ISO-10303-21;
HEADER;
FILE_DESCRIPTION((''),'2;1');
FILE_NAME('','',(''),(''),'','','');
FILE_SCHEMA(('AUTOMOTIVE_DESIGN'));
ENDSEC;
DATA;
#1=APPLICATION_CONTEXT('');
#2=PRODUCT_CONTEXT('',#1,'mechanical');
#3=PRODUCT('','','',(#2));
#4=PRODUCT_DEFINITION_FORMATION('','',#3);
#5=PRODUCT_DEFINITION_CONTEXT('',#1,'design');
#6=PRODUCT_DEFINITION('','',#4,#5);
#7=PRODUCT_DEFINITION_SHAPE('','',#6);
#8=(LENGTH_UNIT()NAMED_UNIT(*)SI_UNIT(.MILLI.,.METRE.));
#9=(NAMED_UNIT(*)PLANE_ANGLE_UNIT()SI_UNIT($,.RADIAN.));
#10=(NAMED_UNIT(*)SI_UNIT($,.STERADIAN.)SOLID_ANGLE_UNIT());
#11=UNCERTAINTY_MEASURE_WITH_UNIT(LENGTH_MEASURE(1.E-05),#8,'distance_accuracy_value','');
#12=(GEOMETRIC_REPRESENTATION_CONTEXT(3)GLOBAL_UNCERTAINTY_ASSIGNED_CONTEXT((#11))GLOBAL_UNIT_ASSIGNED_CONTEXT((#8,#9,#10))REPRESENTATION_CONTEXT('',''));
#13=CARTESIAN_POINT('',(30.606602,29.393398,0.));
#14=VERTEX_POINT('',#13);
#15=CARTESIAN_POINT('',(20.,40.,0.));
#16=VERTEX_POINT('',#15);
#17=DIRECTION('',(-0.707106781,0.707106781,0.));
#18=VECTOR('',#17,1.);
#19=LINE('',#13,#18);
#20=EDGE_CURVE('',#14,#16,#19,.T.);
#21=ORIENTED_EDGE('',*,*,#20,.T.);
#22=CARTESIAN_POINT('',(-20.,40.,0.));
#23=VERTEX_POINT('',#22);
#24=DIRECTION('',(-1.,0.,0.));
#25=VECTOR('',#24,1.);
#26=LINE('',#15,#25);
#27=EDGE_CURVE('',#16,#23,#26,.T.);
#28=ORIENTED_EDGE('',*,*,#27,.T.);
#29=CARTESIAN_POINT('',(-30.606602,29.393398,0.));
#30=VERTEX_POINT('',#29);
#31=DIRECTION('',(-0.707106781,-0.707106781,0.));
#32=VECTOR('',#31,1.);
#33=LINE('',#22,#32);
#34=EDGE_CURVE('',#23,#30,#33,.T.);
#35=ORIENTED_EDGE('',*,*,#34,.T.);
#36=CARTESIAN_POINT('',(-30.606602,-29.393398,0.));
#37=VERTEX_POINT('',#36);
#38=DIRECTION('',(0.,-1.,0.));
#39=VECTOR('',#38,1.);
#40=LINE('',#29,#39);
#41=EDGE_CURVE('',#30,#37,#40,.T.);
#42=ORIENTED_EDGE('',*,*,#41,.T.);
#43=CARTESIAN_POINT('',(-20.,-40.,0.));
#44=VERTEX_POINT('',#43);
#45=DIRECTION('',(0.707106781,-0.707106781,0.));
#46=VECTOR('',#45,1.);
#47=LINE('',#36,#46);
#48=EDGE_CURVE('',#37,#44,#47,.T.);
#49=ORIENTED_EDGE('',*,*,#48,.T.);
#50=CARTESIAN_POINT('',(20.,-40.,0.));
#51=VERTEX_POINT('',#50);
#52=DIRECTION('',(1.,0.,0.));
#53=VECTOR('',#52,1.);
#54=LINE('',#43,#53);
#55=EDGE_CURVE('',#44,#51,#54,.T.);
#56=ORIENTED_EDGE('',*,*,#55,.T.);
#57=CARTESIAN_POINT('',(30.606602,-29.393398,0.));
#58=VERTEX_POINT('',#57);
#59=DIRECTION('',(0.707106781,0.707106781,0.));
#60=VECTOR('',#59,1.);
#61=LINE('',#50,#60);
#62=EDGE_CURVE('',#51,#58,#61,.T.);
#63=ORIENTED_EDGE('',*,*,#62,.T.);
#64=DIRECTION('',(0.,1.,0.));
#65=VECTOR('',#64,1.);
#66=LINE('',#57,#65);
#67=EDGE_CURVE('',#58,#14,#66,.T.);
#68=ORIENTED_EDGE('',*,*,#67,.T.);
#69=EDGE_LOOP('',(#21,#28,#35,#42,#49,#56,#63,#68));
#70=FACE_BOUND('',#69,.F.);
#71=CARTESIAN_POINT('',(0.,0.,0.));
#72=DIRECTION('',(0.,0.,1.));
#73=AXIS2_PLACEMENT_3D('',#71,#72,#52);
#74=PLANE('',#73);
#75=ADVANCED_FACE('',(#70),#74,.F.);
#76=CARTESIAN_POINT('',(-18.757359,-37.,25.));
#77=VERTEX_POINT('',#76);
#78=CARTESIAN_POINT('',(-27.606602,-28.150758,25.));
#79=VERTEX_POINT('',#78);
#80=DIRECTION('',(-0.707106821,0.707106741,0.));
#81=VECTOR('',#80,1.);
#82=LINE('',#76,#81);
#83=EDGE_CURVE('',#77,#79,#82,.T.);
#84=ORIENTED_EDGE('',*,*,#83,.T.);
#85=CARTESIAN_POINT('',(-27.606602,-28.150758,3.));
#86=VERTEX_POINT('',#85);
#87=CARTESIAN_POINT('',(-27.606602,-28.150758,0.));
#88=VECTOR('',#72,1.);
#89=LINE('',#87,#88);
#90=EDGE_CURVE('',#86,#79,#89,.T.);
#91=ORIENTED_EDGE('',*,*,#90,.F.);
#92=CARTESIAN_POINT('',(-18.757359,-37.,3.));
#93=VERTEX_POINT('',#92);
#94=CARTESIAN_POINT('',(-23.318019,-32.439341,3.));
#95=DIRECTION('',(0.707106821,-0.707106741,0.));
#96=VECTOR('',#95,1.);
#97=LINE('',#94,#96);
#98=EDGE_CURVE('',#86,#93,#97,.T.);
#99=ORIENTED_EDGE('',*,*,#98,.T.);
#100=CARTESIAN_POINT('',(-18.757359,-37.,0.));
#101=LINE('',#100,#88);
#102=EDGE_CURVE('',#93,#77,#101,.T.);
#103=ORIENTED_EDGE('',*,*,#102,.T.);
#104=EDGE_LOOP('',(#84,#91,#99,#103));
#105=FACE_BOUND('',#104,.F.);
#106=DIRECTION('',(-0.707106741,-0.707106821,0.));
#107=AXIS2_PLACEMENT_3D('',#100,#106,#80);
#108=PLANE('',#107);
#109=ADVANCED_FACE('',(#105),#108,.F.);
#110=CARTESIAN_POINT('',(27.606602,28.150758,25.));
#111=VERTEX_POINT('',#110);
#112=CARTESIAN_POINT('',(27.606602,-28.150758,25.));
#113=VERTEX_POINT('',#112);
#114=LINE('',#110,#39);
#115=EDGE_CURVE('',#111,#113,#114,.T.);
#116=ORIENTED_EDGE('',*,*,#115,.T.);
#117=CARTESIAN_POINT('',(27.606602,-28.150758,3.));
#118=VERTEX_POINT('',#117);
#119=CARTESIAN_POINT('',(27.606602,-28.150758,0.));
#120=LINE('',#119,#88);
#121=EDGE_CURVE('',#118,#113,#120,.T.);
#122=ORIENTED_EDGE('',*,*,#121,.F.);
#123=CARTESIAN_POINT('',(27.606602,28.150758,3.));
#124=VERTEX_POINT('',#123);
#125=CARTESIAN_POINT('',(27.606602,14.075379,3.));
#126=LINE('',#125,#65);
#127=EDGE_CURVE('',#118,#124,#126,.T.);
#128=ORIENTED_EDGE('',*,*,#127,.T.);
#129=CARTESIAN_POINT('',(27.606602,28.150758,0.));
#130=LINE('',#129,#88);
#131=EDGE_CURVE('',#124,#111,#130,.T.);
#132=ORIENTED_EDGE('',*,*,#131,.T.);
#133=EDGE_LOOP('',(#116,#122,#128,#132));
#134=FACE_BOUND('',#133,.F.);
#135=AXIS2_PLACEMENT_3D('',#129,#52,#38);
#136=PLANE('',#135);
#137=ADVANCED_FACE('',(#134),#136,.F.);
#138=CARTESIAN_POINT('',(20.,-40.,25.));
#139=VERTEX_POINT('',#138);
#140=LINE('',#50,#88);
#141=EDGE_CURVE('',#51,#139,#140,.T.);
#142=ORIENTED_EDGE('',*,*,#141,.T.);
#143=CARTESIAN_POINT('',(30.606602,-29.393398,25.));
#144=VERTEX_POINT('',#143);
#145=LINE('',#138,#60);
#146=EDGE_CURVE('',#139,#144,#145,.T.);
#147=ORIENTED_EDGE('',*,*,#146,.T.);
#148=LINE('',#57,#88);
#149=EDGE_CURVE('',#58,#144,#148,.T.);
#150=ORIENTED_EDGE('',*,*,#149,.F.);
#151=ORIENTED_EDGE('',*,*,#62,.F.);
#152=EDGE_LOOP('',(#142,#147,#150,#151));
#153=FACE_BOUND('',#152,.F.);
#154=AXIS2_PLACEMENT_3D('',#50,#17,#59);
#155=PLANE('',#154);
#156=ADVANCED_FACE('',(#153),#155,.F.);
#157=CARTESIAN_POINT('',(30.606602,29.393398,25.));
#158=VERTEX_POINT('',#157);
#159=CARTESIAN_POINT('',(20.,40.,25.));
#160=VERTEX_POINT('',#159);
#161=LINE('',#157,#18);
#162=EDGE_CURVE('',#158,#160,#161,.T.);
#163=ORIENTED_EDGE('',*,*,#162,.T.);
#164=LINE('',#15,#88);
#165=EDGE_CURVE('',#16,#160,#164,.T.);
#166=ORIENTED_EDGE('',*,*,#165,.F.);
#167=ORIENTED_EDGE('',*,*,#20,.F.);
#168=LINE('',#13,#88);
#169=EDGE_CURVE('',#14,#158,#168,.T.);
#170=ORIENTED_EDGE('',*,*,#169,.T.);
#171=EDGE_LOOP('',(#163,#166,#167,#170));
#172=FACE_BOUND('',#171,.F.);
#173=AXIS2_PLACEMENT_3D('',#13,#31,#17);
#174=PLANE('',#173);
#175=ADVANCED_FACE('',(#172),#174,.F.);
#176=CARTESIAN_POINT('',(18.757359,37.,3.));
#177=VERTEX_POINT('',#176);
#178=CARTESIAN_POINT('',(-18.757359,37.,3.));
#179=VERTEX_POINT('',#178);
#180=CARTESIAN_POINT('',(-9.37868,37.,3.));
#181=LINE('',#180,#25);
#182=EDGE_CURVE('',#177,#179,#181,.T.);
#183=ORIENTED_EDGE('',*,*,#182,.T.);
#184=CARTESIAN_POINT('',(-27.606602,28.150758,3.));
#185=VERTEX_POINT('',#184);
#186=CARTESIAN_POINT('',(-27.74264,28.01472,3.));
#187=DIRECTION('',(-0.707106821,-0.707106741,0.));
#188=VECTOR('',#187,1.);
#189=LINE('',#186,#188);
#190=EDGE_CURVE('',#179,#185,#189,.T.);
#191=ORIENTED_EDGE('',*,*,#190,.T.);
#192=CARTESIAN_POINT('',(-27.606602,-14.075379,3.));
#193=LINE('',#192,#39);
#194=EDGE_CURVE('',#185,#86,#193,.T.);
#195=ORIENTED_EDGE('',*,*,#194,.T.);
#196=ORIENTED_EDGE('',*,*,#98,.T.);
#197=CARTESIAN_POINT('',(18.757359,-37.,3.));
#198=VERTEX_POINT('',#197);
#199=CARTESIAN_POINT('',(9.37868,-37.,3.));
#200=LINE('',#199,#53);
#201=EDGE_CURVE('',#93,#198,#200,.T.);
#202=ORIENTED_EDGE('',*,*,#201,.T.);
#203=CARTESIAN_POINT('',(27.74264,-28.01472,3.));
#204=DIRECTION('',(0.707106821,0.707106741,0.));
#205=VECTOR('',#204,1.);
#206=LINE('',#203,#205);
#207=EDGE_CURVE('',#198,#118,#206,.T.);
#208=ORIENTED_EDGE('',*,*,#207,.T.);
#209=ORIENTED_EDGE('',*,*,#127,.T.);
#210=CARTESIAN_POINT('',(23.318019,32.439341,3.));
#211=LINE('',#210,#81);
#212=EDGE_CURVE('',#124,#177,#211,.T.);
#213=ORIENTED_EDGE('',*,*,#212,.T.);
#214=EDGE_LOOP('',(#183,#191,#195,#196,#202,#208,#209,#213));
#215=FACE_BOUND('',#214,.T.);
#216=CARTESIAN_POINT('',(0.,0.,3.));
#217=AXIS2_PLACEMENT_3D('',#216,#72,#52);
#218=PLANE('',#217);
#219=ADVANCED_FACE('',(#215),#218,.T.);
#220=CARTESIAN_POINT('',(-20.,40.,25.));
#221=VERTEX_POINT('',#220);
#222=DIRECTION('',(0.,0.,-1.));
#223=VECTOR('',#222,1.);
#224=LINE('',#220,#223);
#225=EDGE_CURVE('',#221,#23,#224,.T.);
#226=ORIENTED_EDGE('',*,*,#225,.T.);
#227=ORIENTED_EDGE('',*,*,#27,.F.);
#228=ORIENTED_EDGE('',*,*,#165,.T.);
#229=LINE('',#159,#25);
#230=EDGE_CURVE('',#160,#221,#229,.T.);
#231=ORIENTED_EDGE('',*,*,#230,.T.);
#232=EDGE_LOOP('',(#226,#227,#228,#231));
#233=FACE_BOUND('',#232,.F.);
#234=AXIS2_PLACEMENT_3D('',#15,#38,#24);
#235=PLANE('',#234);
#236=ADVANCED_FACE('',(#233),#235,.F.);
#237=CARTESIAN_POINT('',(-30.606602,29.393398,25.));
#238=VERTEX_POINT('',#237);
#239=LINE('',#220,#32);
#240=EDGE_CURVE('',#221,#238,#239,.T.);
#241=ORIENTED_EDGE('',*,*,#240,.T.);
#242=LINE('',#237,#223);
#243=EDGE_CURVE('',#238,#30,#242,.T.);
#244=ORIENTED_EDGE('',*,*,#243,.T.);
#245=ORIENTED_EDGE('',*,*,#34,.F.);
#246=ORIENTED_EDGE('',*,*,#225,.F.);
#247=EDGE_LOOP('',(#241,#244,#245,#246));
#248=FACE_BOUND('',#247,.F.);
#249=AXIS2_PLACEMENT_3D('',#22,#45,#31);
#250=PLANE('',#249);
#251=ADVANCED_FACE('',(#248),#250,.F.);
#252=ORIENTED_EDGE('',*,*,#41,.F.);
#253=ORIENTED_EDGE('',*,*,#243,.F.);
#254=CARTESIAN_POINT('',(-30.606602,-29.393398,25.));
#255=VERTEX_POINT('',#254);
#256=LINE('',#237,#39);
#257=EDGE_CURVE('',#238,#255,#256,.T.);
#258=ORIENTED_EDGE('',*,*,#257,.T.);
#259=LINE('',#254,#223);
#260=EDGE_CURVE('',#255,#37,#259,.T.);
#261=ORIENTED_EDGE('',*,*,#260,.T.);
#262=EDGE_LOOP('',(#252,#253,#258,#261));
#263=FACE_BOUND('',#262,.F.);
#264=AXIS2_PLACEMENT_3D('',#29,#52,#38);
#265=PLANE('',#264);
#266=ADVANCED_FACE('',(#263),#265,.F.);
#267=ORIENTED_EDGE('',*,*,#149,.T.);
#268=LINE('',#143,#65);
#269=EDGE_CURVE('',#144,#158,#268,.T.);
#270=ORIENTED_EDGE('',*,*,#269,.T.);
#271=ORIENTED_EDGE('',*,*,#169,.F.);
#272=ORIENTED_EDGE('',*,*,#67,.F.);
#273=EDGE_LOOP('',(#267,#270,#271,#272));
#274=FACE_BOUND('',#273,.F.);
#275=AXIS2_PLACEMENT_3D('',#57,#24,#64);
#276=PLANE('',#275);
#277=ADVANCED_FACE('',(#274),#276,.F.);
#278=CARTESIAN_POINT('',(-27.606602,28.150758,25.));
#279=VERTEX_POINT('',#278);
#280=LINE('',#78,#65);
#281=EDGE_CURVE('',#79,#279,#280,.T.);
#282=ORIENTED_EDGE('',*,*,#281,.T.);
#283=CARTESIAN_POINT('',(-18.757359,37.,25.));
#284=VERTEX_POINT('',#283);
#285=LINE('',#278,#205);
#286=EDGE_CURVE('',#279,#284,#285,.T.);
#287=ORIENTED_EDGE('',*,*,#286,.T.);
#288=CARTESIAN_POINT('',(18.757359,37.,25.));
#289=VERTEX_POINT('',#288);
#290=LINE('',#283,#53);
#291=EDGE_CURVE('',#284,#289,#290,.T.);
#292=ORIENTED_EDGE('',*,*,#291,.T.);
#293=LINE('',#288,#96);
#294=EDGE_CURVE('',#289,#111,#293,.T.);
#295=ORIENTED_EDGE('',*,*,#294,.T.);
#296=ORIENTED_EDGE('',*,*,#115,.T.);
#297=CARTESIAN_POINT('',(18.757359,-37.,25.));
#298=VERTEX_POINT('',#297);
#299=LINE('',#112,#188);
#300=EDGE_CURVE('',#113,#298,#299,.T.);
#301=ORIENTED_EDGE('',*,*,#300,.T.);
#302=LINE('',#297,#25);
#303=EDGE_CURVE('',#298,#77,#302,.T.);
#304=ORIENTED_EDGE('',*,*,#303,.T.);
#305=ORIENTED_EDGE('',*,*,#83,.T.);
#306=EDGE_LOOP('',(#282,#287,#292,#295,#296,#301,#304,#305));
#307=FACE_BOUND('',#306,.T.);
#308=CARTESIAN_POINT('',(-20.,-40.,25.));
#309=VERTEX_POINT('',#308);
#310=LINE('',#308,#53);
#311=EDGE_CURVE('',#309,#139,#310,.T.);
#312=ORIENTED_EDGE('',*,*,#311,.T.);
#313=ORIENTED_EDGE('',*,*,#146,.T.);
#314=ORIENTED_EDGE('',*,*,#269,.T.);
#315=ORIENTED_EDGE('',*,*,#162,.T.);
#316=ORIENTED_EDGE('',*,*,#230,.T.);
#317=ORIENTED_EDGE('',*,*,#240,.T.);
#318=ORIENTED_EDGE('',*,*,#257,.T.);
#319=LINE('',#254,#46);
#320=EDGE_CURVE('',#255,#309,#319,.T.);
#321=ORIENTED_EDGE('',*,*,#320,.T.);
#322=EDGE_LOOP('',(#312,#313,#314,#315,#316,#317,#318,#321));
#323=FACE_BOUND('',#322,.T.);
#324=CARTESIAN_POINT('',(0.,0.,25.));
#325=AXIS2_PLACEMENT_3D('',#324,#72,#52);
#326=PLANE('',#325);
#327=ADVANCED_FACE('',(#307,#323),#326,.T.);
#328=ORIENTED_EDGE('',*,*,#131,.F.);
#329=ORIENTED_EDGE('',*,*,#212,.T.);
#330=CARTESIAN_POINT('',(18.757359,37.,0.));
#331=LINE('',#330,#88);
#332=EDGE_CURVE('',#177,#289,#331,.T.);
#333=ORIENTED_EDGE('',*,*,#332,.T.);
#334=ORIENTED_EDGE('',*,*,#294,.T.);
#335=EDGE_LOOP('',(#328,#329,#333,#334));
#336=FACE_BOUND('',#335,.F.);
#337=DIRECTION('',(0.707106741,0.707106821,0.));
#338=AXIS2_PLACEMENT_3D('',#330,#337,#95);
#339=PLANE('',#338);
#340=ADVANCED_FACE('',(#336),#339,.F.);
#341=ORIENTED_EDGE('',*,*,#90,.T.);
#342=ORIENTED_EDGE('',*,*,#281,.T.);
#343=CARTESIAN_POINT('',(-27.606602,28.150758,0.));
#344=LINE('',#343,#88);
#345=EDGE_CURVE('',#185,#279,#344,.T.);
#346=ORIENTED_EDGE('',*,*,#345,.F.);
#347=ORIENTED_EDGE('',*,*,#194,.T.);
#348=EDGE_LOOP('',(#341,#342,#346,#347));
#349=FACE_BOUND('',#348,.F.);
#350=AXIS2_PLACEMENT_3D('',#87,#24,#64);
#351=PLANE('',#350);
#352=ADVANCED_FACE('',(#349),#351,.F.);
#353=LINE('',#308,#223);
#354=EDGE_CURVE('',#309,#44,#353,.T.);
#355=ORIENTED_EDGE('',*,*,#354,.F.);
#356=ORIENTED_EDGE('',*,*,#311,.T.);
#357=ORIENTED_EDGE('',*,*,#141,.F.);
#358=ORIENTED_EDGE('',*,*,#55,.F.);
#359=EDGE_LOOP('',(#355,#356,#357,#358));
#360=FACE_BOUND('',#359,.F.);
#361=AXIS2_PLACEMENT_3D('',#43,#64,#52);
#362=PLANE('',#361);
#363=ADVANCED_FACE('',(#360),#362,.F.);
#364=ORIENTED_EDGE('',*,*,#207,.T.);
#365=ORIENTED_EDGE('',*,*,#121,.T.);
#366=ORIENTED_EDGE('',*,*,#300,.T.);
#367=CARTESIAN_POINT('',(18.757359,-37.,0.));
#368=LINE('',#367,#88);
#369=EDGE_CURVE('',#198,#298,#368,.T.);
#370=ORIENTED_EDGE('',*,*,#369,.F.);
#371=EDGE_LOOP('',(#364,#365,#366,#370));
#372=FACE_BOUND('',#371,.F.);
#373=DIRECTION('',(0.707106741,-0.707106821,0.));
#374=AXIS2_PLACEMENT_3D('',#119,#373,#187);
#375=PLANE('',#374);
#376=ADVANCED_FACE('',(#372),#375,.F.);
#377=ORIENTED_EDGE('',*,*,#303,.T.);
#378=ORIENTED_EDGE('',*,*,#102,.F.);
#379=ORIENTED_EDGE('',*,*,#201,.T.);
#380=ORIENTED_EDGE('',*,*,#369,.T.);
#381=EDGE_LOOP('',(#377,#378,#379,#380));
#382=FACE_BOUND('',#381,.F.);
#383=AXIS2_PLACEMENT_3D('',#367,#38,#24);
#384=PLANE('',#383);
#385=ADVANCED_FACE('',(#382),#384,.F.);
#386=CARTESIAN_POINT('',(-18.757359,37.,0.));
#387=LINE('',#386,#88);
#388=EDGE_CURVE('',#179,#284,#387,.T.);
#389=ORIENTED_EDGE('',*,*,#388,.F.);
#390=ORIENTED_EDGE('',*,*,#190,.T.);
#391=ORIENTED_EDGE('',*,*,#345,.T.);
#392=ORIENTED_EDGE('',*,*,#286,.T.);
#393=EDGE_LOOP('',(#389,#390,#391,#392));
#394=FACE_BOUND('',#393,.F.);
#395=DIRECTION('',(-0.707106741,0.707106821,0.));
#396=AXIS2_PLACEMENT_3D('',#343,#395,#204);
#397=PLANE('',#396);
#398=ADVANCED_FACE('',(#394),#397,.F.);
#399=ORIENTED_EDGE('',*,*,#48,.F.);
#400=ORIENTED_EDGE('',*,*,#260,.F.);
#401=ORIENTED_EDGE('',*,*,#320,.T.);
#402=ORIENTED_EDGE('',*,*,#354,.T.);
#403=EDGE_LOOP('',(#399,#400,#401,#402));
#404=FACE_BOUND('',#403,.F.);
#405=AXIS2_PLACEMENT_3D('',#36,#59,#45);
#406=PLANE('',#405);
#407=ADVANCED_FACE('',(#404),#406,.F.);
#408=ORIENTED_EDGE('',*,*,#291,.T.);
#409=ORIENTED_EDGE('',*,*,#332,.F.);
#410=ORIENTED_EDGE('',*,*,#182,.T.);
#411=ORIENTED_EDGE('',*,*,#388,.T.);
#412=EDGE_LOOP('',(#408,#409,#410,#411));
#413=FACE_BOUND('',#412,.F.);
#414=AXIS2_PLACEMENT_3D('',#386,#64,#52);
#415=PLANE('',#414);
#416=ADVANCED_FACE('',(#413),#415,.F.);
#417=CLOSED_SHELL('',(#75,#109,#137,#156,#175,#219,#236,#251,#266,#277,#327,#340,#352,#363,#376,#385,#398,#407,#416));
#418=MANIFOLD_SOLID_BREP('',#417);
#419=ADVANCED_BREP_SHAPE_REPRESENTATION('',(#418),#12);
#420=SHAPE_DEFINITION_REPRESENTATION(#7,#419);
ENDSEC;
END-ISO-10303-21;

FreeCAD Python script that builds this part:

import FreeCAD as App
import Part
import Sketcher
from FreeCAD import Vector
Q = App.Units.Quantity


def add_polygon(sketch, points):
    """Adds a closed chain of lines whose ends are joined by coincident constraints."""
    first, n = sketch.GeometryCount, len(points)
    for a, b in zip(points, points[1:] + points[:1]):
        sketch.addGeometry(Part.LineSegment(App.Vector(*a, 0), App.Vector(*b, 0)), False)
    for i in range(n):
        sketch.addConstraint(Sketcher.Constraint("Coincident", first + i, 2, first + (i + 1) % n, 1))

doc = App.newDocument("Part")
params = doc.addObject("Spreadsheet::Sheet", "Params")
for row, (alias, value) in enumerate([
    ("sketch1_width", "40 mm"),
    ("sketch1_length", "15 mm"),
    ("pad1_length", "3 mm"),
    ("sketch2_width", "40 mm"),
    ("sketch2_length", "15 mm"),
    ("pad2_length", "25 mm"),
], start=1):
    params.set(f"A{row}", alias)
    params.set(f"B{row}", "=" + value)
    params.setAlias(f"B{row}", alias)

body = doc.addObject("PartDesign::Body", "Body")

# Sketch on XY plane
sketch1 = body.newObject("Sketcher::SketchObject", "Sketch")
sketch1.AttachmentSupport = (doc.getObject("XY_Plane"), [""])
sketch1.MapMode = "FlatFace"
add_polygon(sketch1, [(-20, -40), (20, -40), (31, -29), (31, 29), (20, 40), (-20, 40), (-31, 29), (-31, -29)])  # lines 0-7
sketch1.addConstraint(Sketcher.Constraint("Horizontal", 0))
sketch1.addConstraint(Sketcher.Constraint("Vertical", 2))
sketch1.addConstraint(Sketcher.Constraint("Horizontal", 4))
sketch1.addConstraint(Sketcher.Constraint("Vertical", 6))
sketch1.addConstraint(Sketcher.Constraint("Symmetric", 0, 2, 4, 2, -1, 1))
sketch1.addConstraint(Sketcher.Constraint("Symmetric", 1, 2, 5, 2, -1, 1))
sketch1.addConstraint(Sketcher.Constraint("Perpendicular", 1, 3))
sketch1.addConstraint(Sketcher.Constraint("Perpendicular", 5, 7))
sketch1.addConstraint(Sketcher.Constraint("Horizontal", 2, 2, 5, 2))
sketch1.addConstraint(Sketcher.Constraint("Horizontal", 1, 2, 6, 2))
sketch1.addConstraint(Sketcher.Constraint("Vertical", 0, 2, 3, 2))
sketch1.addConstraint(Sketcher.Constraint("DistanceX", 0, 1, 0, 2, Q("40 mm")))
sketch1.addConstraint(Sketcher.Constraint("Distance", 1, Q("15 mm")))
sketch1.addConstraint(Sketcher.Constraint("DistanceY", 0, 2, -1, 1, Q("40 mm")))
sketch1.setExpression("Constraints[19]", "Params.sketch1_width")
sketch1.setExpression("Constraints[20]", "Params.sketch1_length")
pad1 = body.newObject("PartDesign::Pad", "Pad")
pad1.Profile = sketch1
pad1.setExpression("Length", "Params.pad1_length")

# Sketch on XY plane
sketch2 = body.newObject("Sketcher::SketchObject", "Sketch001")
sketch2.AttachmentSupport = (doc.getObject("XY_Plane"), [""])
sketch2.MapMode = "FlatFace"
add_polygon(sketch2, [(-20, -40), (20, -40), (31, -29), (31, 29), (20, 40), (-20, 40), (-31, 29), (-31, -29)])  # lines 0-7
add_polygon(sketch2, [(19, -37), (-19, -37), (-28, -28), (-28, 28), (-19, 37), (19, 37), (28, 28), (28, -28)])  # lines 8-15
sketch2.addConstraint(Sketcher.Constraint("Horizontal", 0))
sketch2.addConstraint(Sketcher.Constraint("Vertical", 2))
sketch2.addConstraint(Sketcher.Constraint("Horizontal", 4))
sketch2.addConstraint(Sketcher.Constraint("Vertical", 6))
sketch2.addConstraint(Sketcher.Constraint("Horizontal", 8))
sketch2.addConstraint(Sketcher.Constraint("Vertical", 10))
sketch2.addConstraint(Sketcher.Constraint("Horizontal", 12))
sketch2.addConstraint(Sketcher.Constraint("Vertical", 14))
sketch2.addConstraint(Sketcher.Constraint("Symmetric", 0, 2, 4, 2, -1, 1))
sketch2.addConstraint(Sketcher.Constraint("Symmetric", 1, 2, 5, 2, -1, 1))
sketch2.addConstraint(Sketcher.Constraint("Symmetric", 8, 2, 12, 2, -1, 1))
sketch2.addConstraint(Sketcher.Constraint("Symmetric", 9, 2, 13, 2, -1, 1))
sketch2.addConstraint(Sketcher.Constraint("Perpendicular", 1, 3))
sketch2.addConstraint(Sketcher.Constraint("Perpendicular", 5, 7))
sketch2.addConstraint(Sketcher.Constraint("Parallel", 7, 9))
sketch2.addConstraint(Sketcher.Constraint("Perpendicular", 9, 11))
sketch2.addConstraint(Sketcher.Constraint("Perpendicular", 13, 15))
sketch2.addConstraint(Sketcher.Constraint("Horizontal", 2, 2, 5, 2))
sketch2.addConstraint(Sketcher.Constraint("Horizontal", 1, 2, 6, 2))
sketch2.addConstraint(Sketcher.Constraint("Horizontal", 10, 2, 13, 2))
sketch2.addConstraint(Sketcher.Constraint("Horizontal", 9, 2, 14, 2))
sketch2.addConstraint(Sketcher.Constraint("Vertical", 0, 2, 3, 2))
sketch2.addConstraint(Sketcher.Constraint("DistanceX", 0, 1, 0, 2, Q("40 mm")))
sketch2.addConstraint(Sketcher.Constraint("Distance", 1, Q("15 mm")))
sketch2.addConstraint(Sketcher.Constraint("DistanceY", 0, 2, -1, 1, Q("40 mm")))
sketch2.addConstraint(Sketcher.Constraint("DistanceY", 8, 2, -1, 1, Q("37 mm")))
sketch2.addConstraint(Sketcher.Constraint("DistanceX", 6, 2, 9, 2, Q("3 mm")))
sketch2.addConstraint(Sketcher.Constraint("DistanceX", 8, 2, 8, 1, Q("37.514718 mm")))
sketch2.setExpression("Constraints[38]", "Params.sketch2_width")
sketch2.setExpression("Constraints[39]", "Params.sketch2_length")
pad2 = body.newObject("PartDesign::Pad", "Pad001")
pad2.Profile = sketch2
pad2.setExpression("Length", "Params.pad2_length")

doc.recompute()
